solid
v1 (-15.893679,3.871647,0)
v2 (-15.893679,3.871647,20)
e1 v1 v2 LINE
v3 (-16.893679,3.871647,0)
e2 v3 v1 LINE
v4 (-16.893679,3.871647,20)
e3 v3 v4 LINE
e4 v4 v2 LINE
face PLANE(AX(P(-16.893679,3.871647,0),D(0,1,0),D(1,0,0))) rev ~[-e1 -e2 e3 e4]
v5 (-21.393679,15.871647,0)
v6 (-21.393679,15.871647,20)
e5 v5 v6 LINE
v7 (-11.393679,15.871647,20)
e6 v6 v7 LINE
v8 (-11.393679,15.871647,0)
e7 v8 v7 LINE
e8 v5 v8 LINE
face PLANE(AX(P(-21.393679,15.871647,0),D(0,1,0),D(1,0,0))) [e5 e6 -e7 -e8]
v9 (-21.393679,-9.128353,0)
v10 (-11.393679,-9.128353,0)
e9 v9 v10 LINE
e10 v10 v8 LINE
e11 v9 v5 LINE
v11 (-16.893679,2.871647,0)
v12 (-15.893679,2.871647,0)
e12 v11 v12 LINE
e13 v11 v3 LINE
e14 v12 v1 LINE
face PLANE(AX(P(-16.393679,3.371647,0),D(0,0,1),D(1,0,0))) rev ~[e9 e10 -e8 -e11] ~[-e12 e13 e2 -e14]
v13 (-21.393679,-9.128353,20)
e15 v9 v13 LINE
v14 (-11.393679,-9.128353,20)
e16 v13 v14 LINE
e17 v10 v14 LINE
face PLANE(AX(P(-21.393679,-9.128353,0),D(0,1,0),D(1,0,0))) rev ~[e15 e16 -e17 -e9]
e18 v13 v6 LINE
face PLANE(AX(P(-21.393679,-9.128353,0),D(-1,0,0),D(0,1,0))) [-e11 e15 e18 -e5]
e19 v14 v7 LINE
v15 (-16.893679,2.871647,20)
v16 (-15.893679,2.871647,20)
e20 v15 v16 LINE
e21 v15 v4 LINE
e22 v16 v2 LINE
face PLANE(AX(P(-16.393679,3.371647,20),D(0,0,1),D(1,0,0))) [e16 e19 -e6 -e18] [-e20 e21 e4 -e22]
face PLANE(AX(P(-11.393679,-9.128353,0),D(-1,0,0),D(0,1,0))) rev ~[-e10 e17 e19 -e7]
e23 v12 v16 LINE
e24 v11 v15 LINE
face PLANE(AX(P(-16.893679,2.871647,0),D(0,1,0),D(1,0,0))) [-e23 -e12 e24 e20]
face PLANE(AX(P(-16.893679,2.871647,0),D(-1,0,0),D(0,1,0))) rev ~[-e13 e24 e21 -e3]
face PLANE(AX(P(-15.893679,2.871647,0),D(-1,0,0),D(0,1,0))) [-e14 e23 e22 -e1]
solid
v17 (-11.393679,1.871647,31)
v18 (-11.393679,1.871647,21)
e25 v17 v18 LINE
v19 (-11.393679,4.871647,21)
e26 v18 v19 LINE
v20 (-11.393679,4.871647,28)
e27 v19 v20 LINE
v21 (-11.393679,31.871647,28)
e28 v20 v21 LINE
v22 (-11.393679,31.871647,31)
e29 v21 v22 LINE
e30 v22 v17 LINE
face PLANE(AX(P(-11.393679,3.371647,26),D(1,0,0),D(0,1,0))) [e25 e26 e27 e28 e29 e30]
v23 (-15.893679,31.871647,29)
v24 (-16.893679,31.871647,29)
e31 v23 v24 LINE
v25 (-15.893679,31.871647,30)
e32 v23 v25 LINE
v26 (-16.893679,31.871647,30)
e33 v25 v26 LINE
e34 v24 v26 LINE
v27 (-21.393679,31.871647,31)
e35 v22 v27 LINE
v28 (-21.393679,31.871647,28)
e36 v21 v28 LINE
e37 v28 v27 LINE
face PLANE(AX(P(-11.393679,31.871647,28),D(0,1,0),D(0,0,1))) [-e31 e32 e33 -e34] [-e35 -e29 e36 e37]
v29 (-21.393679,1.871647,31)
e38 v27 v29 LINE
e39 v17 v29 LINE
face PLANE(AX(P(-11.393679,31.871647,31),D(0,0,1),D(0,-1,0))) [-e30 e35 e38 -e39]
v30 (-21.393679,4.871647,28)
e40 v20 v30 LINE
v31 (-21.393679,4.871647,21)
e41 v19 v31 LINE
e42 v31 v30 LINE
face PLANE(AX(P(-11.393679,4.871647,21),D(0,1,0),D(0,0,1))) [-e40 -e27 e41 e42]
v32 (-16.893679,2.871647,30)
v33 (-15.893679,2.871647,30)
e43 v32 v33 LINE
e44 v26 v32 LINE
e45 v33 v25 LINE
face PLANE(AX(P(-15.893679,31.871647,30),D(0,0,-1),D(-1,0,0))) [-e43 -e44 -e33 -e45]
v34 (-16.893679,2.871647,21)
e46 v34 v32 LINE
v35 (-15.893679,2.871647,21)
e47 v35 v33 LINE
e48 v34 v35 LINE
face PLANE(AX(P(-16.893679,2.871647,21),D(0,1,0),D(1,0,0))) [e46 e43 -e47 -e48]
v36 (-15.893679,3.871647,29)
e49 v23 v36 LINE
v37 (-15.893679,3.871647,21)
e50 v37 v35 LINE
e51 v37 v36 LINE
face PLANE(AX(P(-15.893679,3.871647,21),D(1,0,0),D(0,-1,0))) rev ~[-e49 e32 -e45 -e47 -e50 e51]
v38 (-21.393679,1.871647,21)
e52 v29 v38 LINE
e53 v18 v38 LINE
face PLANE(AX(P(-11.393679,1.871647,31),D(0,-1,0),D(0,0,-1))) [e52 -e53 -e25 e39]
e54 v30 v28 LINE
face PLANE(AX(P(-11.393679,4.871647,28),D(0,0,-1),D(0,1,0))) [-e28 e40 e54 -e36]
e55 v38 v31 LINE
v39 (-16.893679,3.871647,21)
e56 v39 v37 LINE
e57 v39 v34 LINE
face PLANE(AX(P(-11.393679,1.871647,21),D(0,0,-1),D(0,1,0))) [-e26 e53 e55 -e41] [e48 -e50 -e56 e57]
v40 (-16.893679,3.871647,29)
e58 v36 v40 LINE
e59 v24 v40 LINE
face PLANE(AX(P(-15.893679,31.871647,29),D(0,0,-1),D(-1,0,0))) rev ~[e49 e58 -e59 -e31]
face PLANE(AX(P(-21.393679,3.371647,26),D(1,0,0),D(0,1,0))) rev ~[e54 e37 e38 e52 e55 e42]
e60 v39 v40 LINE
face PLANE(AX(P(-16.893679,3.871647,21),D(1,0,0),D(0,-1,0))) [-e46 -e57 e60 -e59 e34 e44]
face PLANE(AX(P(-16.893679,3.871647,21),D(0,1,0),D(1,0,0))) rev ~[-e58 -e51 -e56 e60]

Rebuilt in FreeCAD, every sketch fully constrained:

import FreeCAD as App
import Part
import Sketcher


def add_polygon(sketch, points):
    """Adds a closed chain of lines whose ends are joined by coincident constraints."""
    first, n = sketch.GeometryCount, len(points)
    for a, b in zip(points, points[1:] + points[:1]):
        sketch.addGeometry(Part.LineSegment(App.Vector(*a, 0), App.Vector(*b, 0)), False)
    for i in range(n):
        sketch.addConstraint(Sketcher.Constraint("Coincident", first + i, 2, first + (i + 1) % n, 1))

doc = App.newDocument("Part")
body = doc.addObject("PartDesign::Body", "Body")

# Sketch on XY plane
sketch1 = doc.addObject("Sketcher::SketchObject", "Sketch")
body.addObject(sketch1)
sketch1.AttachmentSupport = (doc.XY_Plane, [""])
sketch1.MapMode = "FlatFace"
add_polygon(sketch1, [(-21.4, 15.9), (-21.4, -9.1), (-11.4, -9.1), (-11.4, 15.9)])  # lines 0-3
add_polygon(sketch1, [(-15.9, 2.9), (-16.9, 2.9), (-16.9, 3.9), (-15.9, 3.9)])  # lines 4-7
sketch1.addConstraint([
    Sketcher.Constraint("Vertical", 0),
    Sketcher.Constraint("Horizontal", 1),
    Sketcher.Constraint("Vertical", 2),
    Sketcher.Constraint("Horizontal", 3),
    Sketcher.Constraint("Horizontal", 4),
    Sketcher.Constraint("Vertical", 5),
    Sketcher.Constraint("Horizontal", 6),
    Sketcher.Constraint("Vertical", 7),
    Sketcher.Constraint("Equal", 6, 5),
    Sketcher.Constraint("DistanceX", 1, 1, 1, 2, 10.0),
    Sketcher.Constraint("DistanceX", 4, 2, 4, 1, 1.0),
    Sketcher.Constraint("DistanceY", 0, 2, 0, 1, 25.0),
    Sketcher.Constraint("DistanceY", 0, 2, 4, 2, 12.0),
    Sketcher.Constraint("DistanceX", 0, 2, 4, 2, 4.5),
    Sketcher.Constraint("DistanceX", 0, 2, -1, 1, 21.393679),
    Sketcher.Constraint("DistanceY", 0, 2, -1, 1, 9.128353),
])
pad1 = doc.addObject("PartDesign::Pad", "Pad")
body.addObject(pad1)
pad1.Profile = sketch1
pad1.Length = 20
body2 = doc.addObject("PartDesign::Body", "Body001")

# Sketch on YZ plane
sketch2 = doc.addObject("Sketcher::SketchObject", "Sketch001")
body2.addObject(sketch2)
sketch2.AttachmentSupport = (doc.getObject("YZ_Plane001"), [""])
sketch2.MapMode = "FlatFace"
sketch2.AttachmentOffset = App.Placement(App.Vector(0, 0, -11.393679), App.Rotation())
add_polygon(sketch2, [(1.9, 31), (1.9, 21), (4.9, 21), (4.9, 28), (31.9, 28), (31.9, 31)])  # lines 0-5
sketch2.addConstraint([
    Sketcher.Constraint("Vertical", 0),
    Sketcher.Constraint("Horizontal", 1),
    Sketcher.Constraint("Vertical", 2),
    Sketcher.Constraint("Horizontal", 3),
    Sketcher.Constraint("Vertical", 4),
    Sketcher.Constraint("Horizontal", 5),
    Sketcher.Constraint("Equal", 1, 4),
    Sketcher.Constraint("DistanceX", 1, 1, 1, 2, 3.0),
    Sketcher.Constraint("DistanceX", 3, 1, 3, 2, 27.0),
    Sketcher.Constraint("DistanceY", 0, 2, 0, 1, 10.0),
    Sketcher.Constraint("DistanceY", -1, 1, 0, 2, 21.0),
    Sketcher.Constraint("DistanceX", -1, 1, 0, 2, 1.871647),
])
pad2 = doc.addObject("PartDesign::Pad", "Pad001")
body2.addObject(pad2)
pad2.Profile = sketch2
pad2.Length = 10
pad2.Reversed = True

# Sketch on XY plane
sketch3 = doc.addObject("Sketcher::SketchObject", "Sketch002")
body2.addObject(sketch3)
sketch3.AttachmentSupport = (doc.getObject("XY_Plane001"), [""])
sketch3.MapMode = "FlatFace"
sketch3.AttachmentOffset = App.Placement(App.Vector(0, 0, 21), App.Rotation())
add_polygon(sketch3, [(-16.9, 2.9), (-16.9, 3.9), (-15.9, 3.9), (-15.9, 2.9)])  # lines 0-3
sketch3.addConstraint([
    Sketcher.Constraint("Vertical", 0),
    Sketcher.Constraint("Horizontal", 1),
    Sketcher.Constraint("Vertical", 2),
    Sketcher.Constraint("Horizontal", 3),
    Sketcher.Constraint("Equal", 3, 0),
    Sketcher.Constraint("DistanceX", 1, 1, 1, 2, 1.0),
    Sketcher.Constraint("DistanceX", 0, 2, -1, 1, 16.893679),
    Sketcher.Constraint("DistanceY", -1, 1, 0, 2, 3.871647),
])
pocket1 = doc.addObject("PartDesign::Pocket", "Pocket")
body2.addObject(pocket1)
pocket1.Profile = sketch3
pocket1.Length = 9
pocket1.Reversed = True

# Sketch on XZ plane
sketch4 = doc.addObject("Sketcher::SketchObject", "Sketch003")
body2.addObject(sketch4)
sketch4.AttachmentSupport = (doc.getObject("XZ_Plane001"), [""])
sketch4.MapMode = "FlatFace"
sketch4.AttachmentOffset = App.Placement(App.Vector(0, 0, -31.871647), App.Rotation())
add_polygon(sketch4, [(-15.9, 30), (-15.9, 29), (-16.9, 29), (-16.9, 30)])  # lines 0-3
sketch4.addConstraint([
    Sketcher.Constraint("Vertical", 0),
    Sketcher.Constraint("Horizontal", 1),
    Sketcher.Constraint("Vertical", 2),
    Sketcher.Constraint("Horizontal", 3),
    Sketcher.Constraint("Equal", 3, 0),
    Sketcher.Constraint("DistanceX", 1, 2, 1, 1, 1.0),
    Sketcher.Constraint("DistanceY", -1, 1, 0, 2, 29.0),
    Sketcher.Constraint("DistanceX", 0, 2, -1, 1, 15.893679),
])
pocket2 = doc.addObject("PartDesign::Pocket", "Pocket001")
body2.addObject(pocket2)
pocket2.Profile = sketch4
pocket2.Length = 29
pocket2.Reversed = True

doc.recompute()
